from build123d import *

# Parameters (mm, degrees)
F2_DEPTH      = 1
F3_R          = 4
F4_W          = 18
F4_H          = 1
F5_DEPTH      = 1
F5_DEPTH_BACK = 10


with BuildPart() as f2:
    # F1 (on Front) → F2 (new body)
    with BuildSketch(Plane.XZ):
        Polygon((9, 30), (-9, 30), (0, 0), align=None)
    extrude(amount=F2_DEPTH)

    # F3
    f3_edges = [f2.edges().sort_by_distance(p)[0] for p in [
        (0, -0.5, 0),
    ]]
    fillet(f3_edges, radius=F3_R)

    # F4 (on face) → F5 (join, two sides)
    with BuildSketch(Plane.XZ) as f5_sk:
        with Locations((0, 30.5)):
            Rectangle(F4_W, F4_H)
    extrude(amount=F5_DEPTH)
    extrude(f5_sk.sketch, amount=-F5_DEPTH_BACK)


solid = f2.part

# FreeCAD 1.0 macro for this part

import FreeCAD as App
import Part
import Sketcher


def edges_at(feature, points):
    """Names of the edges that pass closest to the given points."""
    edges = feature.Shape.Edges
    near = lambda p: min(range(len(edges)), key=lambda i: edges[i].distToShape(Part.Vertex(*p))[0])
    return sorted({f"Edge{near(p) + 1}" for p in points})


def add_polygon(sketch, points):
    """Adds a closed chain of lines whose ends are joined by coincident constraints."""
    first, n = sketch.GeometryCount, len(points)
    for a, b in zip(points, points[1:] + points[:1]):
        sketch.addGeometry(Part.LineSegment(App.Vector(*a, 0), App.Vector(*b, 0)), False)
    for i in range(n):
        sketch.addConstraint(Sketcher.Constraint("Coincident", first + i, 2, first + (i + 1) % n, 1))

doc = App.newDocument("Part")
body = doc.addObject("PartDesign::Body", "Body")

# Sketch on XZ plane
sketch1 = body.newObject("Sketcher::SketchObject", "Sketch")
sketch1.AttachmentSupport = (doc.getObject("XZ_Plane"), [""])
sketch1.MapMode = "FlatFace"
add_polygon(sketch1, [(9, 30), (-9, 30), (0, 0)])  # lines 0-2
sketch1.addConstraint([
    Sketcher.Constraint("Horizontal", 0),
    Sketcher.Constraint("Coincident", 1, 2, -1, 1),
    Sketcher.Constraint("Equal", 1, 2),
    Sketcher.Constraint("DistanceX", 0, 2, 0, 1, 18.0),
    Sketcher.Constraint("DistanceY", -1, 1, 0, 2, 30.0),
])
pad1 = body.newObject("PartDesign::Pad", "Pad")
pad1.Profile = sketch1
pad1.Length = 1
doc.recompute()

fillet = body.newObject("PartDesign::Fillet", "Fillet")
fillet.Base = (pad1, edges_at(pad1, [(0, -0.5, 0)]))
fillet.Radius = 4

# Sketch on XZ plane
sketch2 = body.newObject("Sketcher::SketchObject", "Sketch001")
sketch2.AttachmentSupport = (doc.getObject("XZ_Plane"), [""])
sketch2.MapMode = "FlatFace"
add_polygon(sketch2, [(-9, 31), (-9, 30), (9, 30), (9, 31)])  # lines 0-3
sketch2.addConstraint([
    Sketcher.Constraint("Vertical", 0),
    Sketcher.Constraint("Horizontal", 1),
    Sketcher.Constraint("Vertical", 2),
    Sketcher.Constraint("Horizontal", 3),
    Sketcher.Constraint("DistanceX", 1, 1, 1, 2, 18.0),
    Sketcher.Constraint("DistanceY", 0, 2, 0, 1, 1.0),
    Sketcher.Constraint("DistanceX", 0, 2, -1, 1, 9.0),
    Sketcher.Constraint("DistanceY", -1, 1, 0, 2, 30.0),
])
pad2 = body.newObject("PartDesign::Pad", "Pad001")
pad2.Profile = sketch2
pad2.Type = "TwoLengths"
pad2.Length = 1
pad2.Length2 = 10

doc.recompute()
